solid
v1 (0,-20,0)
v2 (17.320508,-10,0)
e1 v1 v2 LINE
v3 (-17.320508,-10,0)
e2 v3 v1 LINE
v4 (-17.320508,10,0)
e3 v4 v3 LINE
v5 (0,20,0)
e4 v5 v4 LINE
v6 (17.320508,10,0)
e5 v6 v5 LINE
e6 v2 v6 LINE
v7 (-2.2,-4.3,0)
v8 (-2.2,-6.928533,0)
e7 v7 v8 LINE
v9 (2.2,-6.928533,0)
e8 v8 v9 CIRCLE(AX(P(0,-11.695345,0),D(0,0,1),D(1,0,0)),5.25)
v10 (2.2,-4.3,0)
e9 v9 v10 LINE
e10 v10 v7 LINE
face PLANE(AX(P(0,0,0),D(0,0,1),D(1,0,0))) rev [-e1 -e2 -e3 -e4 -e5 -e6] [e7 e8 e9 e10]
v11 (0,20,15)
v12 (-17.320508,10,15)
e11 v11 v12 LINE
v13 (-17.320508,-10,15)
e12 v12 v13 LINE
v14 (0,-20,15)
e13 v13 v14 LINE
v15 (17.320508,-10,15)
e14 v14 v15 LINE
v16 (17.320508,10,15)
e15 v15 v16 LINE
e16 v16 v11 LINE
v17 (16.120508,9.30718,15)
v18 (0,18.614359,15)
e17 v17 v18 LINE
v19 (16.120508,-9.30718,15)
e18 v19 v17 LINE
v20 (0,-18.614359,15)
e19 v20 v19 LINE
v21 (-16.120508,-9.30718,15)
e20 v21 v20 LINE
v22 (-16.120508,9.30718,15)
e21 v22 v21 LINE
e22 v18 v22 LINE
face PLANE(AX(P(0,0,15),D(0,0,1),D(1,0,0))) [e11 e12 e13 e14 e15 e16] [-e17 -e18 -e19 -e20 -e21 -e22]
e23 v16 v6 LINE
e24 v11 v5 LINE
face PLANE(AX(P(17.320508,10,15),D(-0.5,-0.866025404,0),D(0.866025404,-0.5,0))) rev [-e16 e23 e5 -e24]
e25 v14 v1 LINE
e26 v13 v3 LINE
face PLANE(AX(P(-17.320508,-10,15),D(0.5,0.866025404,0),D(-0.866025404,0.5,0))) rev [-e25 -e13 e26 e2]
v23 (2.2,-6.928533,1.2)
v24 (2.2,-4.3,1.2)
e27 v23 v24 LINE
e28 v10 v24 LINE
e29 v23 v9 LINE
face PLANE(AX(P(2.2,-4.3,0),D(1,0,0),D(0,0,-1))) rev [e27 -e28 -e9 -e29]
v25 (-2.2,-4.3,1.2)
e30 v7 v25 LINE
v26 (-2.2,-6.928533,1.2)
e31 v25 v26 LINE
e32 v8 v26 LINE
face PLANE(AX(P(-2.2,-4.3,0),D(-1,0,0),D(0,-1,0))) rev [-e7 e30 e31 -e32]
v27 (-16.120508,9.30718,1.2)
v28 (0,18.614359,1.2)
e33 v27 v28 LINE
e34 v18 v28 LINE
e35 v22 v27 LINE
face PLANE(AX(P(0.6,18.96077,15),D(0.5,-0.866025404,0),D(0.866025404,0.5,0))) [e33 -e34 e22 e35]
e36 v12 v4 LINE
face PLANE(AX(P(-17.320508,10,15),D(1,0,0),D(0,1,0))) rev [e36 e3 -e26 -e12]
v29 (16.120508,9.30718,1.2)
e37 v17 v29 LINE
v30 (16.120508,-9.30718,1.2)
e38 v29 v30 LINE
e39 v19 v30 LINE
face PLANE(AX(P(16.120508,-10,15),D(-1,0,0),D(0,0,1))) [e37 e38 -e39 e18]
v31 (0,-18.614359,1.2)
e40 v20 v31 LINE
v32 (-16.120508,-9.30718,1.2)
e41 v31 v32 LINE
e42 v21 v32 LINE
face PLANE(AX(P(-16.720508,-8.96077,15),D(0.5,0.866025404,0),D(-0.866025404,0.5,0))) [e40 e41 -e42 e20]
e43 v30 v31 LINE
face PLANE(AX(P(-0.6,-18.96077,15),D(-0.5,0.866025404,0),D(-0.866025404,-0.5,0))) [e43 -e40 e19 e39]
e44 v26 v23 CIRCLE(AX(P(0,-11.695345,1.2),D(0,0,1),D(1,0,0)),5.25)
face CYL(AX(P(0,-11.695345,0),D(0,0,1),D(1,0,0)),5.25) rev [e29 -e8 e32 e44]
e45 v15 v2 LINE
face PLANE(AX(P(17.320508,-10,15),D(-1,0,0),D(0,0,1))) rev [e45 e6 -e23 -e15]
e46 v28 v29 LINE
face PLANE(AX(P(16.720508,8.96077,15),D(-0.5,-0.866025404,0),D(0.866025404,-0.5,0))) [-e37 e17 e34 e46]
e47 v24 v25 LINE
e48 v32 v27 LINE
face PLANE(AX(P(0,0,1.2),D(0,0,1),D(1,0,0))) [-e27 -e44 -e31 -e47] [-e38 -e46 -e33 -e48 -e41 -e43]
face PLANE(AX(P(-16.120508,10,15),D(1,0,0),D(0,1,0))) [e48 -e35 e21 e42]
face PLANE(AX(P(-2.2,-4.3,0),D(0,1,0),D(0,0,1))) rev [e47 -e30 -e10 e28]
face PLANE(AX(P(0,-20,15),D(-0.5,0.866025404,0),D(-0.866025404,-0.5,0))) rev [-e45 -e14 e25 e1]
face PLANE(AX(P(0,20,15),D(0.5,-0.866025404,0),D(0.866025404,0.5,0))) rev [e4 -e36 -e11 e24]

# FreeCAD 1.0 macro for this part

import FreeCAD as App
import Part
import Sketcher
from FreeCAD import Vector
Q = App.Units.Quantity

doc = App.newDocument("Part")
body = doc.addObject("PartDesign::Body", "Body")

sketch1 = body.newObject("Sketcher::SketchObject", "Sketch")
sketch1.AttachmentSupport = (doc.getObject("XY_Plane"), [""])
sketch1.MapMode = "FlatFace"
sketch1.addGeometry([
    Part.LineSegment(Vector(0, -20, 0), Vector(17, -10, 0)),
    Part.LineSegment(Vector(17, -10, 0), Vector(17, 10, 0)),
    Part.LineSegment(Vector(17, 10, 0), Vector(0, 20, 0)),
    Part.LineSegment(Vector(0, 20, 0), Vector(-17, 10, 0)),
    Part.LineSegment(Vector(-17, 10, 0), Vector(-17, -10, 0)),
    Part.LineSegment(Vector(-17, -10, 0), Vector(0, -20, 0)),
    Part.LineSegment(Vector(16, -9, 0), Vector(0, -19, 0)),
    Part.LineSegment(Vector(0, -19, 0), Vector(-16, -9, 0)),
    Part.LineSegment(Vector(-16, -9, 0), Vector(-16, 9, 0)),
    Part.LineSegment(Vector(-16, 9, 0), Vector(0, 19, 0)),
    Part.LineSegment(Vector(0, 19, 0), Vector(16, 9, 0)),
    Part.LineSegment(Vector(16, 9, 0), Vector(16, -9, 0)),
], False)
sketch1.addConstraint([
    Sketcher.Constraint("Coincident", 0, 2, 1, 1),
    Sketcher.Constraint("Coincident", 1, 2, 2, 1),
    Sketcher.Constraint("Coincident", 2, 2, 3, 1),
    Sketcher.Constraint("Coincident", 3, 2, 4, 1),
    Sketcher.Constraint("Coincident", 4, 2, 5, 1),
    Sketcher.Constraint("Coincident", 5, 2, 0, 1),
    Sketcher.Constraint("Coincident", 6, 2, 7, 1),
    Sketcher.Constraint("Coincident", 7, 2, 8, 1),
    Sketcher.Constraint("Coincident", 8, 2, 9, 1),
    Sketcher.Constraint("Coincident", 9, 2, 10, 1),
    Sketcher.Constraint("Coincident", 10, 2, 11, 1),
    Sketcher.Constraint("Coincident", 11, 2, 6, 1),
    Sketcher.Constraint("Vertical", 1),
    Sketcher.Constraint("Vertical", 4),
    Sketcher.Constraint("Vertical", 8),
    Sketcher.Constraint("Vertical", 11),
    Sketcher.Constraint("Symmetric", 0, 2, 3, 2, -1, 1),
    Sketcher.Constraint("Symmetric", 2, 2, 5, 2, -1, 1),
    Sketcher.Constraint("Symmetric", 6, 2, 9, 2, -1, 1),
    Sketcher.Constraint("Symmetric", 7, 2, 10, 2, -1, 1),
    Sketcher.Constraint("PointOnObject", 2, 2, -2),
    Sketcher.Constraint("PointOnObject", 6, 2, -2),
    Sketcher.Constraint("Parallel", 2, 5),
    Sketcher.Constraint("Parallel", 3, 6),
    Sketcher.Constraint("Parallel", 5, 7),
    Sketcher.Constraint("Parallel", 6, 9),
    Sketcher.Constraint("Horizontal", 1, 2, 3, 2),
    Sketcher.Constraint("DistanceY", 1, 1, 1, 2, 20.0),
    Sketcher.Constraint("Angle", 0, Q("30 deg")),
    Sketcher.Constraint("Distance", 0, 20.0),
    Sketcher.Constraint("DistanceX", 4, 2, 7, 2, 1.2),
    Sketcher.Constraint("DistanceY", 8, 1, 8, 2, 18.614359),
])
pad1 = body.newObject("PartDesign::Pad", "Pad")
pad1.Profile = sketch1
pad1.Length = 15

sketch2 = body.newObject("Sketcher::SketchObject", "Sketch001")
sketch2.AttachmentSupport = (doc.getObject("XY_Plane"), [""])
sketch2.MapMode = "FlatFace"
sketch2.addGeometry([
    Part.LineSegment(Vector(16, 9, 0), Vector(16, -9, 0)),
    Part.LineSegment(Vector(16, -9, 0), Vector(0, -19, 0)),
    Part.LineSegment(Vector(0, -19, 0), Vector(-16, -9, 0)),
    Part.LineSegment(Vector(-16, -9, 0), Vector(-16, 9, 0)),
    Part.LineSegment(Vector(-16, 9, 0), Vector(0, 19, 0)),
    Part.LineSegment(Vector(0, 19, 0), Vector(16, 9, 0)),
], False)
sketch2.addConstraint([
    Sketcher.Constraint("Coincident", 0, 2, 1, 1),
    Sketcher.Constraint("Coincident", 1, 2, 2, 1),
    Sketcher.Constraint("Coincident", 2, 2, 3, 1),
    Sketcher.Constraint("Coincident", 3, 2, 4, 1),
    Sketcher.Constraint("Coincident", 4, 2, 5, 1),
    Sketcher.Constraint("Coincident", 5, 2, 0, 1),
    Sketcher.Constraint("Vertical", 0),
    Sketcher.Constraint("Vertical", 3),
    Sketcher.Constraint("Symmetric", 0, 2, 3, 2, -1, 1),
    Sketcher.Constraint("Symmetric", 1, 2, 4, 2, -1, 1),
    Sketcher.Constraint("PointOnObject", 1, 2, -2),
    Sketcher.Constraint("Parallel", 2, 5),
    Sketcher.Constraint("Horizontal", 0, 2, 2, 2),
    Sketcher.Constraint("Angle", 1, Q("-150 deg")),
    Sketcher.Constraint("DistanceY", 0, 2, 0, 1, 18.614359),
    Sketcher.Constraint("Distance", 1, 18.614359),
])
pad2 = body.newObject("PartDesign::Pad", "Pad001")
pad2.Profile = sketch2
pad2.Length = 1.2

sketch3 = body.newObject("Sketcher::SketchObject", "Sketch002")
sketch3.AttachmentSupport = (doc.getObject("XY_Plane"), [""])
sketch3.MapMode = "FlatFace"
sketch3.AttachmentOffset = App.Placement(Vector(0, 0, 1.2), App.Rotation())
sketch3.addGeometry(Part.Circle(Vector(0, -12, 0), Vector(0, 0, 1), 5), False)
sketch3.addConstraint([
    Sketcher.Constraint("PointOnObject", 0, 3, -2),
    Sketcher.Constraint("Diameter", 0, 10.5),
    Sketcher.Constraint("DistanceY", 0, 3, -1, 1, 11.695345),
])
pocket1 = body.newObject("PartDesign::Pocket", "Pocket")
pocket1.Profile = sketch3
pocket1.Length = 1.2

sketch4 = body.newObject("Sketcher::SketchObject", "Sketch003")
sketch4.AttachmentSupport = (doc.getObject("XY_Plane"), [""])
sketch4.MapMode = "FlatFace"
sketch4.AttachmentOffset = App.Placement(Vector(0, 0, 1.2), App.Rotation())
sketch4.addGeometry([
    Part.LineSegment(Vector(-2.2, -4.3, 0), Vector(-2.2, -9, 0)),
    Part.LineSegment(Vector(-2.2, -9, 0), Vector(2.2, -9, 0)),
    Part.LineSegment(Vector(2.2, -9, 0), Vector(2.2, -4.3, 0)),
    Part.LineSegment(Vector(2.2, -4.3, 0), Vector(-2.2, -4.3, 0)),
], False)
sketch4.addConstraint([
    Sketcher.Constraint("Coincident", 0, 2, 1, 1),
    Sketcher.Constraint("Coincident", 1, 2, 2, 1),
    Sketcher.Constraint("Coincident", 2, 2, 3, 1),
    Sketcher.Constraint("Coincident", 3, 2, 0, 1),
    Sketcher.Constraint("Vertical", 0),
    Sketcher.Constraint("Horizontal", 1),
    Sketcher.Constraint("Vertical", 2),
    Sketcher.Constraint("Horizontal", 3),
    Sketcher.Constraint("DistanceX", 1, 1, 1, 2, 4.4),
    Sketcher.Constraint("DistanceX", 0, 2, -1, 1, 2.2),
    Sketcher.Constraint("DistanceY", 2, 2, -1, 1, 4.3),
    Sketcher.Constraint("DistanceY", 0, 2, 0, 1, 4.70758),
])
pocket2 = body.newObject("PartDesign::Pocket", "Pocket001")
pocket2.Profile = sketch4
pocket2.Length = 1.2

doc.recompute()
